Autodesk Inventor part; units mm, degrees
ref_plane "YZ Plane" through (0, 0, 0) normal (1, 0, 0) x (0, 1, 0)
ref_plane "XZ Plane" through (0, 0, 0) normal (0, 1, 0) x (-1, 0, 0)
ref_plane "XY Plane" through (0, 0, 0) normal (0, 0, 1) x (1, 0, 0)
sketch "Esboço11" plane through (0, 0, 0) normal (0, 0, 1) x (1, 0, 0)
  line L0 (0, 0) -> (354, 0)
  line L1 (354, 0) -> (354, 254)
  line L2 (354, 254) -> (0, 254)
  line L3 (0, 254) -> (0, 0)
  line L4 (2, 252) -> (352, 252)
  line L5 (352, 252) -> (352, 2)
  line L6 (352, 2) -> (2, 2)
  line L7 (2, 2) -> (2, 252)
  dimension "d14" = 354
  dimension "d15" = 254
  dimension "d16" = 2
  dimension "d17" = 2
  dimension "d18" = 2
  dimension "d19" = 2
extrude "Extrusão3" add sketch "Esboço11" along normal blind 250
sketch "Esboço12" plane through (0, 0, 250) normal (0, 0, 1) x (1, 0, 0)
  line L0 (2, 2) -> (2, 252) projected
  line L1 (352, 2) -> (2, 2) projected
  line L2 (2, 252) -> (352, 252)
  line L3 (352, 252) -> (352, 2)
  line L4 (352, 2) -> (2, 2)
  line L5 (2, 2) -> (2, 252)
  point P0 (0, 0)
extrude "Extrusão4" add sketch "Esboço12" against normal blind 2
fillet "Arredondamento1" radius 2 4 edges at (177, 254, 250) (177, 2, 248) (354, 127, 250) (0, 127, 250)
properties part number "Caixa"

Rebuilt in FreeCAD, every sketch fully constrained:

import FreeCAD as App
import Part
import Sketcher
Q = App.Units.Quantity


def edges_at(feature, points):
    """Names of the edges that pass closest to the given points."""
    edges = feature.Shape.Edges
    near = lambda p: min(range(len(edges)), key=lambda i: edges[i].distToShape(Part.Vertex(*p))[0])
    return sorted({f"Edge{near(p) + 1}" for p in points})


def add_polygon(sketch, points):
    """Adds a closed chain of lines whose ends are joined by coincident constraints."""
    first, n = sketch.GeometryCount, len(points)
    for a, b in zip(points, points[1:] + points[:1]):
        sketch.addGeometry(Part.LineSegment(App.Vector(*a, 0), App.Vector(*b, 0)), False)
    for i in range(n):
        sketch.addConstraint(Sketcher.Constraint("Coincident", first + i, 2, first + (i + 1) % n, 1))

doc = App.newDocument("Part")
body = doc.addObject("PartDesign::Body", "Body")

# Sketch on XY plane
sketch1 = doc.addObject("Sketcher::SketchObject", "Sketch")
body.addObject(sketch1)
sketch1.AttachmentSupport = (doc.XY_Plane, [""])
sketch1.MapMode = "FlatFace"
add_polygon(sketch1, [(0, 254), (0, 0), (354, 0), (354, 254)])  # lines 0-3
add_polygon(sketch1, [(2, 2), (2, 252), (352, 252), (352, 2)])  # lines 4-7
sketch1.addConstraint(Sketcher.Constraint("Vertical", 0))
sketch1.addConstraint(Sketcher.Constraint("Horizontal", 1))
sketch1.addConstraint(Sketcher.Constraint("Vertical", 2))
sketch1.addConstraint(Sketcher.Constraint("Horizontal", 3))
sketch1.addConstraint(Sketcher.Constraint("Vertical", 4))
sketch1.addConstraint(Sketcher.Constraint("Horizontal", 5))
sketch1.addConstraint(Sketcher.Constraint("Vertical", 6))
sketch1.addConstraint(Sketcher.Constraint("Horizontal", 7))
sketch1.addConstraint(Sketcher.Constraint("Coincident", 0, 2, -1, 1))
sketch1.addConstraint(Sketcher.Constraint("DistanceX", 1, 1, 1, 2, Q("354 mm")))
sketch1.addConstraint(Sketcher.Constraint("DistanceY", 0, 2, 0, 1, Q("254 mm")))
sketch1.addConstraint(Sketcher.Constraint("DistanceX", -1, 1, 4, 2, Q("2 mm")))
sketch1.addConstraint(Sketcher.Constraint("DistanceY", -1, 1, 6, 2, Q("2 mm")))
sketch1.addConstraint(Sketcher.Constraint("DistanceY", 4, 2, 3, 2, Q("2 mm")))
sketch1.addConstraint(Sketcher.Constraint("DistanceX", 5, 2, 2, 2, Q("2 mm")))
pad1 = doc.addObject("PartDesign::Pad", "Pad")
body.addObject(pad1)
pad1.Profile = sketch1
pad1.Length = 250

# Sketch on XY plane
sketch2 = doc.addObject("Sketcher::SketchObject", "Sketch001")
body.addObject(sketch2)
sketch2.AttachmentSupport = (doc.XY_Plane, [""])
sketch2.MapMode = "FlatFace"
sketch2.AttachmentOffset = App.Placement(App.Vector(0, 0, 250), App.Rotation())
add_polygon(sketch2, [(2, 252), (2, 2), (352, 2), (352, 252)])  # lines 0-3
sketch2.addConstraint(Sketcher.Constraint("Vertical", 0))
sketch2.addConstraint(Sketcher.Constraint("Horizontal", 1))
sketch2.addConstraint(Sketcher.Constraint("Vertical", 2))
sketch2.addConstraint(Sketcher.Constraint("Horizontal", 3))
sketch2.addConstraint(Sketcher.Constraint("DistanceX", 1, 1, 1, 2, Q("350 mm")))
sketch2.addConstraint(Sketcher.Constraint("DistanceY", 0, 2, 0, 1, Q("250 mm")))
sketch2.addConstraint(Sketcher.Constraint("DistanceX", -1, 1, 0, 2, Q("2 mm")))
sketch2.addConstraint(Sketcher.Constraint("DistanceY", -1, 1, 0, 2, Q("2 mm")))
pad2 = doc.addObject("PartDesign::Pad", "Pad001")
body.addObject(pad2)
pad2.Profile = sketch2
pad2.Length = 2
pad2.Reversed = True
doc.recompute()

fillet = doc.addObject("PartDesign::Fillet", "Fillet")
body.addObject(fillet)
fillet.Base = (pad2, edges_at(pad2, [
    (177, 254, 250),
    (177, 2, 248),
    (354, 127, 250),
    (0, 127, 250),
]))
fillet.Radius = 2

doc.recompute()
